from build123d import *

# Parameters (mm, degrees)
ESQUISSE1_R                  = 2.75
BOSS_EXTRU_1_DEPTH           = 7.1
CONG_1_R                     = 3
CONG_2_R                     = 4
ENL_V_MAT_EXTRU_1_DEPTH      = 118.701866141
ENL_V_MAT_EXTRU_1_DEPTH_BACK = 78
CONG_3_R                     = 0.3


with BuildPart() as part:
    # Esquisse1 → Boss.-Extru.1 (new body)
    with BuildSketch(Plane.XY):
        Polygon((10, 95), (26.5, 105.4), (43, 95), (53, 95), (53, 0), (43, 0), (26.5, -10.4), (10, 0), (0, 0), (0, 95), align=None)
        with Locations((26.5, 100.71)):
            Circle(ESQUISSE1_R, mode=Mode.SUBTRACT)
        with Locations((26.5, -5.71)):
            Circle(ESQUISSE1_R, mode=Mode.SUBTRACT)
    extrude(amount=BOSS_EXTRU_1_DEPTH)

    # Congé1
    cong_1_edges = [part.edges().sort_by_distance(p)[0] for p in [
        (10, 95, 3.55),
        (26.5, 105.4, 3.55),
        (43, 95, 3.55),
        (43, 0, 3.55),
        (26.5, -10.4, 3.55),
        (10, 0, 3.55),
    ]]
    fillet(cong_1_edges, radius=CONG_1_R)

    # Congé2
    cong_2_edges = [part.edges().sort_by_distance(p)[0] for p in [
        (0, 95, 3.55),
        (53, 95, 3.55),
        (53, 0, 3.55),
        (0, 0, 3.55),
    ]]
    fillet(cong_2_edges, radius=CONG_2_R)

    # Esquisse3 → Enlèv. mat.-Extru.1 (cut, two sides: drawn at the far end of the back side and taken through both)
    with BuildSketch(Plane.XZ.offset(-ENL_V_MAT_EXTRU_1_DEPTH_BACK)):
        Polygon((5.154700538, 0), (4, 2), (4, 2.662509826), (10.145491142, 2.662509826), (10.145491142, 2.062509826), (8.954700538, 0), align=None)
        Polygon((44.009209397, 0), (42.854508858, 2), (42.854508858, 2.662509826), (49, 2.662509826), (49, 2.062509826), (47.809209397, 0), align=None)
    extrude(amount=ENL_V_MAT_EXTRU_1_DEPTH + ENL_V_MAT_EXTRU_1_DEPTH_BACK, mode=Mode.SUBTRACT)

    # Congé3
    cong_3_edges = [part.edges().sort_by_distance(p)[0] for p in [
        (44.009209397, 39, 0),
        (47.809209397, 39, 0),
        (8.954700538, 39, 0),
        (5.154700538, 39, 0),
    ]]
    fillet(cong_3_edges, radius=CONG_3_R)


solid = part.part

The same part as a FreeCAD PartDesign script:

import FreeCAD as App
import Part
import Sketcher

V = App.Vector
Q = App.Units.Quantity


def edges_at(feature, points):
    """Names of the edges that pass closest to the given points."""
    edges = feature.Shape.Edges
    near = lambda p: min(range(len(edges)), key=lambda i: edges[i].distToShape(Part.Vertex(*p))[0])
    return sorted({f"Edge{near(p) + 1}" for p in points})


def add_polygon(sketch, points):
    """Adds a closed chain of lines whose ends are joined by coincident constraints."""
    first, n = sketch.GeometryCount, len(points)
    for a, b in zip(points, points[1:] + points[:1]):
        sketch.addGeometry(Part.LineSegment(App.Vector(*a, 0), App.Vector(*b, 0)), False)
    for i in range(n):
        sketch.addConstraint(Sketcher.Constraint("Coincident", first + i, 2, first + (i + 1) % n, 1))

doc = App.newDocument("Part")
body = doc.addObject("PartDesign::Body", "Body")

# Sketch on XY plane
sketch1 = body.newObject("Sketcher::SketchObject", "Sketch")
sketch1.AttachmentSupport = (doc.getObject("XY_Plane"), [""])
sketch1.MapMode = "FlatFace"
add_polygon(sketch1, [(26.5, 105.4), (10, 95), (0, 95), (0, 0), (10, 0), (26.5, -10.4), (43, 0), (53, 0), (53, 95), (43, 95)])  # lines 0-9
sketch1.addGeometry(Part.Circle(V(26.5, -5.7, 0), V(0, 0, 1), 2.8), False)  # 10
sketch1.addGeometry(Part.Circle(V(26.5, 100.7, 0), V(0, 0, 1), 2.8), False)  # 11
sketch1.addConstraint([
    Sketcher.Constraint("Horizontal", 1),
    Sketcher.Constraint("Vertical", 2),
    Sketcher.Constraint("Horizontal", 3),
    Sketcher.Constraint("Horizontal", 6),
    Sketcher.Constraint("Vertical", 7),
    Sketcher.Constraint("Horizontal", 8),
    Sketcher.Constraint("Coincident", 2, 2, -1, 1),
    Sketcher.Constraint("Equal", 10, 11),
    Sketcher.Constraint("PointOnObject", 5, 2, -1),
    Sketcher.Constraint("Parallel", 0, 5),
    Sketcher.Constraint("Parallel", 4, 9),
    Sketcher.Constraint("Horizontal", 1, 2, 7, 2),
    Sketcher.Constraint("Vertical", 10, 3, 11, 3),
    Sketcher.Constraint("Vertical", 0, 2, 3, 2),
    Sketcher.Constraint("Vertical", 11, 3, 4, 2),
    Sketcher.Constraint("Vertical", 5, 2, 8, 2),
    Sketcher.Constraint("Vertical", 4, 2, 9, 2),
    Sketcher.Constraint("Equal", 3, 6),
    Sketcher.Constraint("Diameter", 10, 5.5),
    Sketcher.Constraint("DistanceX", 1, 2, 1, 1, 10.0),
    Sketcher.Constraint("DistanceY", 2, 2, 2, 1, 95.0),
    Sketcher.Constraint("DistanceX", -1, 1, 5, 2, 43.0),
    Sketcher.Constraint("DistanceY", 4, 2, -1, 1, 10.4),
    Sketcher.Constraint("DistanceY", 10, 3, -1, 1, 5.71),
    Sketcher.Constraint("DistanceY", -1, 1, 11, 3, 100.71),
])
pad1 = body.newObject("PartDesign::Pad", "Pad")
pad1.Profile = sketch1
pad1.Length = 7.1
doc.recompute()

fillet = body.newObject("PartDesign::Fillet", "Fillet")
fillet.Base = (pad1, edges_at(pad1, [
    (10, 95, 3.55),
    (26.5, 105.4, 3.55),
    (43, 95, 3.55),
    (43, 0, 3.55),
    (26.5, -10.4, 3.55),
    (10, 0, 3.55),
]))
fillet.Radius = 3
doc.recompute()

fillet2 = body.newObject("PartDesign::Fillet", "Fillet001")
fillet2.Base = (fillet, edges_at(fillet, [
    (0, 95, 3.55),
    (53, 95, 3.55),
    (53, 0, 3.55),
    (0, 0, 3.55),
]))
fillet2.Radius = 4

# Sketch on XZ plane
sketch2 = body.newObject("Sketcher::SketchObject", "Sketch001")
sketch2.AttachmentSupport = (doc.getObject("XZ_Plane"), [""])
sketch2.MapMode = "FlatFace"
add_polygon(sketch2, [(4, 2), (5.2, 0), (9, 0), (10.1, 2.1), (10.1, 2.7), (4, 2.7)])  # lines 0-5
add_polygon(sketch2, [(42.9, 2), (44, 0), (47.8, 0), (49, 2.1), (49, 2.7), (42.9, 2.7)])  # lines 6-11
sketch2.addConstraint([
    Sketcher.Constraint("Horizontal", 1),
    Sketcher.Constraint("Vertical", 3),
    Sketcher.Constraint("Horizontal", 4),
    Sketcher.Constraint("Vertical", 5),
    Sketcher.Constraint("Horizontal", 7),
    Sketcher.Constraint("Vertical", 9),
    Sketcher.Constraint("Horizontal", 10),
    Sketcher.Constraint("Vertical", 11),
    Sketcher.Constraint("PointOnObject", 0, 2, -1),
    Sketcher.Constraint("PointOnObject", 6, 2, -1),
    Sketcher.Constraint("Parallel", 0, 6),
    Sketcher.Constraint("Parallel", 2, 8),
    Sketcher.Constraint("Horizontal", 2, 2, 8, 2),
    Sketcher.Constraint("Horizontal", 4, 2, 9, 2),
    Sketcher.Constraint("Horizontal", 5, 2, 11, 2),
    Sketcher.Constraint("Equal", 1, 7),
    Sketcher.Constraint("Angle", 0, Q("-60 deg")),
    Sketcher.Constraint("Angle", 2, Q("60 deg")),
    Sketcher.Constraint("DistanceX", 1, 1, 1, 2, 3.8),
    Sketcher.Constraint("DistanceY", 3, 1, 3, 2, 0.6),
    Sketcher.Constraint("DistanceX", -1, 1, 4, 2, 4.0),
    Sketcher.Constraint("DistanceY", -1, 1, 5, 2, 2.0),
    Sketcher.Constraint("DistanceX", -1, 1, 8, 2, 49.0),
    Sketcher.Constraint("DistanceX", 4, 2, 4, 1, 6.145491),
])
pocket1 = body.newObject("PartDesign::Pocket", "Pocket")
pocket1.Profile = sketch2
pocket1.Type = "TwoLengths"
pocket1.Length = 118.701866
pocket1.Length2 = 78
pocket1.Reversed = True
doc.recompute()

fillet3 = body.newObject("PartDesign::Fillet", "Fillet002")
fillet3.Base = (pocket1, edges_at(pocket1, [
    (44.009, 39, 0),
    (47.809, 39, 0),
    (8.955, 39, 0),
    (5.155, 39, 0),
]))
fillet3.Radius = 0.3

doc.recompute()
